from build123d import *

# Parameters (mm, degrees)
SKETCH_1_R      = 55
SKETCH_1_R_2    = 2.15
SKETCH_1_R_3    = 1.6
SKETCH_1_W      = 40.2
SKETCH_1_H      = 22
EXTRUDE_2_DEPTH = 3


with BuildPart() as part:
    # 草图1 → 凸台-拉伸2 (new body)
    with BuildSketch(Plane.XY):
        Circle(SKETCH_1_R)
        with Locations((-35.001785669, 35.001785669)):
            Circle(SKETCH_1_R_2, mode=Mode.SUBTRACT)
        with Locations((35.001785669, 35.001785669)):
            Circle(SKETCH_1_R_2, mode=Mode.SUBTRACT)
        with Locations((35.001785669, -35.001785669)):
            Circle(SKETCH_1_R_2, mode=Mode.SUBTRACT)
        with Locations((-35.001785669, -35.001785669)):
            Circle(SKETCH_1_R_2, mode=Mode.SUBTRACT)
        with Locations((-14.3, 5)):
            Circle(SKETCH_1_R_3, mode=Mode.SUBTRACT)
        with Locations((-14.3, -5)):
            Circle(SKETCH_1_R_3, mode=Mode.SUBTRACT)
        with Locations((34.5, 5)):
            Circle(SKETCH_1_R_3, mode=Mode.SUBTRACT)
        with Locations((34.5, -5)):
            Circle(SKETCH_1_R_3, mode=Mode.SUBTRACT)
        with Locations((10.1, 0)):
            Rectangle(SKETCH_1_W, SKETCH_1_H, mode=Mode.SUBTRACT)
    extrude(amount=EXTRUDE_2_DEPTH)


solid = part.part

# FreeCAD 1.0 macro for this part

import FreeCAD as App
import Part
import Sketcher
Q = App.Units.Quantity

doc = App.newDocument("Part")
body = doc.addObject("PartDesign::Body", "Body")

sketch1 = doc.addObject("Sketcher::SketchObject", "Sketch")
body.addObject(sketch1)
sketch1.AttachmentSupport = (doc.XY_Plane, [""])
sketch1.MapMode = "FlatFace"
sketch1.addGeometry([
    Part.Circle(App.Vector(0, 0, 0), App.Vector(0, 0, 1), 55),
    Part.Circle(App.Vector(-35.001786, -35.001786, 0), App.Vector(0, 0, 1), 2.15),
    Part.Circle(App.Vector(-14.3, -5, 0), App.Vector(0, 0, 1), 1.6),
    Part.Circle(App.Vector(35.001786, -35.001786, 0), App.Vector(0, 0, 1), 2.15),
    Part.Circle(App.Vector(34.5, -5, 0), App.Vector(0, 0, 1), 1.6),
    Part.Circle(App.Vector(-14.3, 5, 0), App.Vector(0, 0, 1), 1.6),
    Part.Circle(App.Vector(-35.001786, 35.001786, 0), App.Vector(0, 0, 1), 2.15),
    Part.LineSegment(App.Vector(30.2, -11, 0), App.Vector(-10, -11, 0)),
    Part.LineSegment(App.Vector(-10, -11, 0), App.Vector(-10, 11, 0)),
    Part.LineSegment(App.Vector(-10, 11, 0), App.Vector(30.2, 11, 0)),
    Part.LineSegment(App.Vector(30.2, 11, 0), App.Vector(30.2, -11, 0)),
    Part.Circle(App.Vector(34.5, 5, 0), App.Vector(0, 0, 1), 1.6),
    Part.Circle(App.Vector(35.001786, 35.001786, 0), App.Vector(0, 0, 1), 2.15),
], False)
sketch1.addConstraint([
    Sketcher.Constraint("Coincident", 7, 2, 8, 1),
    Sketcher.Constraint("Coincident", 8, 2, 9, 1),
    Sketcher.Constraint("Coincident", 9, 2, 10, 1),
    Sketcher.Constraint("Coincident", 10, 2, 7, 1),
    Sketcher.Constraint("Horizontal", 7),
    Sketcher.Constraint("Vertical", 8),
    Sketcher.Constraint("Horizontal", 9),
    Sketcher.Constraint("Vertical", 10),
    Sketcher.Constraint("Coincident", 0, 3, -1, 1),
    Sketcher.Constraint("Equal", 1, 3),
    Sketcher.Constraint("Equal", 2, 4),
    Sketcher.Constraint("Equal", 4, 5),
    Sketcher.Constraint("Equal", 3, 6),
    Sketcher.Constraint("Equal", 5, 11),
    Sketcher.Constraint("Equal", 6, 12),
    Sketcher.Constraint("Symmetric", 3, 3, 6, 3, -1, 1),
    Sketcher.Constraint("Symmetric", 1, 3, 12, 3, -1, 1),
    Sketcher.Constraint("Symmetric", 1, 3, 3, 3, -2),
    Sketcher.Constraint("Symmetric", 2, 3, 5, 3, -1),
    Sketcher.Constraint("Symmetric", 4, 3, 11, 3, -1),
    Sketcher.Constraint("Horizontal", 2, 3, 4, 3),
    Sketcher.Constraint("Diameter", 0, Q("110 mm")),
    Sketcher.Constraint("Diameter", 1, Q("4.3 mm")),
    Sketcher.Constraint("Diameter", 2, Q("3.2 mm")),
    Sketcher.Constraint("DistanceY", 8, 1, 8, 2, Q("22 mm")),
    Sketcher.Constraint("DistanceX", 7, 2, 7, 1, Q("40.2 mm")),
    Sketcher.Constraint("DistanceY", 2, 3, -1, 1, Q("5 mm")),
    Sketcher.Constraint("DistanceX", 7, 2, -1, 1, Q("10 mm")),
    Sketcher.Constraint("DistanceY", 7, 2, -1, 1, Q("11 mm")),
    Sketcher.Constraint("DistanceX", 2, 3, -1, 1, Q("14.3 mm")),
    Sketcher.Constraint("DistanceX", -1, 1, 4, 3, Q("34.5 mm")),
    Sketcher.Constraint("DistanceX", 1, 3, 3, 3, Q("70.003571 mm")),
    Sketcher.Constraint("DistanceY", 1, 3, 6, 3, Q("70.003571 mm")),
])
pad1 = doc.addObject("PartDesign::Pad", "Pad")
body.addObject(pad1)
pad1.Profile = sketch1
pad1.Length = 3

doc.recompute()
